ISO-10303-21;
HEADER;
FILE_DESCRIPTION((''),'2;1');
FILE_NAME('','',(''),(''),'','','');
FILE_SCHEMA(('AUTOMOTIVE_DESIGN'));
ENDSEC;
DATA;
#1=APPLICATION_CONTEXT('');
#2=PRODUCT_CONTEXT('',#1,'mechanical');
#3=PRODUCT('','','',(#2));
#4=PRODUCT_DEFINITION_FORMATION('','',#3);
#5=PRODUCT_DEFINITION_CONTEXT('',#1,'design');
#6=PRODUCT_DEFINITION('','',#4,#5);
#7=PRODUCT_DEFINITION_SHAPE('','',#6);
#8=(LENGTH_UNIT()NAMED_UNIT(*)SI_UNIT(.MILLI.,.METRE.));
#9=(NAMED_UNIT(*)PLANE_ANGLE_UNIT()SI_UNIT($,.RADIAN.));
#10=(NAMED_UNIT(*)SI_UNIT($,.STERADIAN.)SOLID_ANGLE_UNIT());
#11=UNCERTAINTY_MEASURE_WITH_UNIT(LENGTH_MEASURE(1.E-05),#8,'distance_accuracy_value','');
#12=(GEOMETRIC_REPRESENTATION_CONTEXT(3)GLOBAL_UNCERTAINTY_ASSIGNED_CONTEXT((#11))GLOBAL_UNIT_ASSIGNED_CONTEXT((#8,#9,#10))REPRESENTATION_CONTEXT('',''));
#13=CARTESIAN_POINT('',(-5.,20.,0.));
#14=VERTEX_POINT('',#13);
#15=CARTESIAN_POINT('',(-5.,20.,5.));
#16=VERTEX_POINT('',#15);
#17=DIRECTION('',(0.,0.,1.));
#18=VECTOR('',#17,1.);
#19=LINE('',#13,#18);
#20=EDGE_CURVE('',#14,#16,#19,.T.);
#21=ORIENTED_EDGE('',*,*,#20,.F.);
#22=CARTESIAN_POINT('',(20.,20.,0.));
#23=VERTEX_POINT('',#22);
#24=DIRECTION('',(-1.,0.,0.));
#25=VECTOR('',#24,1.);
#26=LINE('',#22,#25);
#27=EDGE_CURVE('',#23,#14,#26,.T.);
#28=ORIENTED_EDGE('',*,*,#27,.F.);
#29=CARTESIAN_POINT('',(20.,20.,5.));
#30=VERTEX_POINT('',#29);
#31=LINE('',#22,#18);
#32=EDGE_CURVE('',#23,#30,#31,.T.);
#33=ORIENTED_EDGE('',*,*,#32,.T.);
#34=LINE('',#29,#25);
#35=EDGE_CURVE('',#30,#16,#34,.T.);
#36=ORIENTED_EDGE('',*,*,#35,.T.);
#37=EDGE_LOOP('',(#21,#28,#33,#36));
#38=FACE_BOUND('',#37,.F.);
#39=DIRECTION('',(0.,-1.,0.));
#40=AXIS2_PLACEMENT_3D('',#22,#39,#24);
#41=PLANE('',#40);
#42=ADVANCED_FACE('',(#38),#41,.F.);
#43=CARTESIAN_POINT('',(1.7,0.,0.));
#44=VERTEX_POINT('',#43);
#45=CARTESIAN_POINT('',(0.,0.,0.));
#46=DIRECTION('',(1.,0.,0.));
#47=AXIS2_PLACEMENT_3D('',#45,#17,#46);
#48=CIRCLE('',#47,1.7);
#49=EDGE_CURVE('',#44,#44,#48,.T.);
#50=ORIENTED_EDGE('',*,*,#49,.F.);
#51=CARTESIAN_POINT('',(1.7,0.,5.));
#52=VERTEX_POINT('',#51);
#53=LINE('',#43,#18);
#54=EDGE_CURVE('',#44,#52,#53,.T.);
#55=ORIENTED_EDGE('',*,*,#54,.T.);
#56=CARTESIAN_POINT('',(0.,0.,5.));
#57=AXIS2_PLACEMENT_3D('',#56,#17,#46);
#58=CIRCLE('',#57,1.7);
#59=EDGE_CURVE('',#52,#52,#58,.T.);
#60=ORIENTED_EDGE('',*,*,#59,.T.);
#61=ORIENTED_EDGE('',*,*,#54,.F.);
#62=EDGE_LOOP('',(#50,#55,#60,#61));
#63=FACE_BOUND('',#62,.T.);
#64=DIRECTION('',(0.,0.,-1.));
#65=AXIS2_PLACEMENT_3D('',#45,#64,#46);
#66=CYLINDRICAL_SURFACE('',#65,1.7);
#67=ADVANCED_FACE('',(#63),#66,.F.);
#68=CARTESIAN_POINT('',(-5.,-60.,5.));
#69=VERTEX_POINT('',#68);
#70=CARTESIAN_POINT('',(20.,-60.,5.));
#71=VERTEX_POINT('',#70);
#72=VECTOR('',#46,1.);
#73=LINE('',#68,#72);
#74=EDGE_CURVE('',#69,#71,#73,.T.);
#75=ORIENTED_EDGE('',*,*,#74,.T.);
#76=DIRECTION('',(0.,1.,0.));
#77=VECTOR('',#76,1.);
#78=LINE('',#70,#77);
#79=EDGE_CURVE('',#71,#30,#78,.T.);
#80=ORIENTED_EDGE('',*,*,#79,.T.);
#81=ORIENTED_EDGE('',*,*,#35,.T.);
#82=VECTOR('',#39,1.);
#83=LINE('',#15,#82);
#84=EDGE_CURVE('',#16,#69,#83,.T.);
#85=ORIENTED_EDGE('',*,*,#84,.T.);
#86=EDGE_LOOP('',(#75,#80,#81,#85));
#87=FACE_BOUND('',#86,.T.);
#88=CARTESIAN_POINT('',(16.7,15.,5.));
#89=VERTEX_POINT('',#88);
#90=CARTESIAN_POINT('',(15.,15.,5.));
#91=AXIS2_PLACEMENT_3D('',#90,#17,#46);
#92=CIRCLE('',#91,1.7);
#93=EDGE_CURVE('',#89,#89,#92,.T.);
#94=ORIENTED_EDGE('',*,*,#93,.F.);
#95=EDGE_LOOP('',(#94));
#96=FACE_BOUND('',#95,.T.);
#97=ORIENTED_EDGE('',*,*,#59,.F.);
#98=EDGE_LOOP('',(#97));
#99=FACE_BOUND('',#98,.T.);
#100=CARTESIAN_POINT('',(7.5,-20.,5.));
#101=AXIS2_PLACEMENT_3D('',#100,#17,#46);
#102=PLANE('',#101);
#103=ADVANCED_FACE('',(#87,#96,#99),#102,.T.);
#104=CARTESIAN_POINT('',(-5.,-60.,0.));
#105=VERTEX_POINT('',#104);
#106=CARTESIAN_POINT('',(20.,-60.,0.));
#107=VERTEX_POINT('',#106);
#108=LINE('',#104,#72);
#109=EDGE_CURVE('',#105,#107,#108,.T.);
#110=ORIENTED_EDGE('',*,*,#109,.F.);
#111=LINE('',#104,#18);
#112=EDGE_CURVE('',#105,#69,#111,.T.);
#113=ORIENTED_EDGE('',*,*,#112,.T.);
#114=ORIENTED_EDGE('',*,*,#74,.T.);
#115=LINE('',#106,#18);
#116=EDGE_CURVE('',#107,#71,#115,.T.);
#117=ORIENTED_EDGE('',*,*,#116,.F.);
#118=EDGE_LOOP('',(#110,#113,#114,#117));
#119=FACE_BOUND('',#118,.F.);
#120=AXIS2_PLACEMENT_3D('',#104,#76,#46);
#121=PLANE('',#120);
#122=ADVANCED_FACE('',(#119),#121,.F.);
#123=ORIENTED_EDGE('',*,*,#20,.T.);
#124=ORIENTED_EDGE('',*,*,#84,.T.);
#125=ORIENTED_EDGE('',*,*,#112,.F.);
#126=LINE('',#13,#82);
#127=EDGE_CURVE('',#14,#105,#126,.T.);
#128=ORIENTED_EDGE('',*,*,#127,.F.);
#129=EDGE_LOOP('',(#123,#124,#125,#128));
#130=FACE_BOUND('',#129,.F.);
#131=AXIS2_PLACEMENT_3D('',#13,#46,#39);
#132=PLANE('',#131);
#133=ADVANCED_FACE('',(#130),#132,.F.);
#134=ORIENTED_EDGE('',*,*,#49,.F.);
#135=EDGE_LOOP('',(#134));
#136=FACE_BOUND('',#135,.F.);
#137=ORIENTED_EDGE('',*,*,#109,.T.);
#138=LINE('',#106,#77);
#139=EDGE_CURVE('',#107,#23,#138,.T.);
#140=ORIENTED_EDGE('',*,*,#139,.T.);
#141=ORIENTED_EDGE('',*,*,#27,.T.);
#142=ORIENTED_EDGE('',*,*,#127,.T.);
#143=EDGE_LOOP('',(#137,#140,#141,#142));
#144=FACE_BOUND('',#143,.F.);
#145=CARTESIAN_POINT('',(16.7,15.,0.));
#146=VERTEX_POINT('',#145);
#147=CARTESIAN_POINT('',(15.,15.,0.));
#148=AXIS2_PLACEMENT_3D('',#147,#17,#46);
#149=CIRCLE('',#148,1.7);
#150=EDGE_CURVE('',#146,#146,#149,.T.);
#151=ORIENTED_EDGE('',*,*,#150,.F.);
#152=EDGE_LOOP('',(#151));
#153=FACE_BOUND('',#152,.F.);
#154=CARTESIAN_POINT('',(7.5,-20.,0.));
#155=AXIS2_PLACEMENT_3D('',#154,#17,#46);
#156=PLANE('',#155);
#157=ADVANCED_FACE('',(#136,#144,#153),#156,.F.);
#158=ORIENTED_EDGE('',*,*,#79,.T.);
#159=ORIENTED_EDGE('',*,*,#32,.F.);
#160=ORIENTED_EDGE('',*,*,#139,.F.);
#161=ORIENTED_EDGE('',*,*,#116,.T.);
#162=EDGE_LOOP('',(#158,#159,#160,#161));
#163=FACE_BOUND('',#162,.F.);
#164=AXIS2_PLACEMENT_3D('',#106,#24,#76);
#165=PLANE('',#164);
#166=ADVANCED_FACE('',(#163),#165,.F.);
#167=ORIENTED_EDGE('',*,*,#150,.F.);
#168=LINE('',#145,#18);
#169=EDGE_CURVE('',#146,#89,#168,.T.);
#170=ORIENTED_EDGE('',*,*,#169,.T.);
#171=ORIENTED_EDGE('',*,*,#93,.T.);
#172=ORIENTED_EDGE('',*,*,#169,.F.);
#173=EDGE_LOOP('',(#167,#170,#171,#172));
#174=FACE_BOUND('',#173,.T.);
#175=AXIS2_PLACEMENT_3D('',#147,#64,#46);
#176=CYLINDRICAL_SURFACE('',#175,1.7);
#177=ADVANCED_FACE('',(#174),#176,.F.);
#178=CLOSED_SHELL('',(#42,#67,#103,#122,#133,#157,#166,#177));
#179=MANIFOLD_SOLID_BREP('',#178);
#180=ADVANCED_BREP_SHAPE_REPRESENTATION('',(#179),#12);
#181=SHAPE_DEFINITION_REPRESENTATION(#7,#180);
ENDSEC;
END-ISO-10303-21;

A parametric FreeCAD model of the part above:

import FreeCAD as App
import Part
import Sketcher
from FreeCAD import Vector

doc = App.newDocument("Part")
params = doc.addObject("Spreadsheet::Sheet", "Params")
for row, (alias, value) in enumerate([
    ("sketch1_diameter", "3.4 mm"),
    ("sketch1_height", "80 mm"),
    ("pad1_length", "5 mm"),
], start=1):
    params.set(f"A{row}", alias)
    params.set(f"B{row}", "=" + value)
    params.setAlias(f"B{row}", alias)

body = doc.addObject("PartDesign::Body", "Body")

sketch1 = body.newObject("Sketcher::SketchObject", "Sketch")
sketch1.AttachmentSupport = (doc.getObject("XY_Plane"), [""])
sketch1.MapMode = "FlatFace"
sketch1.addGeometry([
    Part.LineSegment(Vector(-5, 20, 0), Vector(-5, -60, 0)),
    Part.LineSegment(Vector(-5, -60, 0), Vector(20, -60, 0)),
    Part.LineSegment(Vector(20, -60, 0), Vector(20, 20, 0)),
    Part.LineSegment(Vector(20, 20, 0), Vector(-5, 20, 0)),
    Part.Circle(Vector(0, 0, 0), Vector(0, 0, 1), 1.7),
    Part.Circle(Vector(15, 15, 0), Vector(0, 0, 1), 1.7),
], False)
sketch1.addConstraint([
    Sketcher.Constraint("Coincident", 0, 2, 1, 1),
    Sketcher.Constraint("Coincident", 1, 2, 2, 1),
    Sketcher.Constraint("Coincident", 2, 2, 3, 1),
    Sketcher.Constraint("Coincident", 3, 2, 0, 1),
    Sketcher.Constraint("Vertical", 0),
    Sketcher.Constraint("Horizontal", 1),
    Sketcher.Constraint("Vertical", 2),
    Sketcher.Constraint("Horizontal", 3),
    Sketcher.Constraint("Coincident", 4, 3, -1, 1),
    Sketcher.Constraint("Equal", 4, 5),
    Sketcher.Constraint("DistanceX", -1, 1, 5, 3, 15.0),
    Sketcher.Constraint("DistanceY", -1, 1, 5, 3, 15.0),
    Sketcher.Constraint("DistanceX", 0, 2, -1, 1, 5.0),
    Sketcher.Constraint("DistanceX", 5, 3, 1, 2, 5.0),
    Sketcher.Constraint("DistanceY", 5, 3, 2, 2, 5.0),
    Sketcher.Constraint("Diameter", 4, 3.4),
    Sketcher.Constraint("DistanceY", 0, 2, 0, 1, 80.0),
])
sketch1.setExpression("Constraints[15]", "Params.sketch1_diameter")
sketch1.setExpression("Constraints[16]", "Params.sketch1_height")
pad1 = body.newObject("PartDesign::Pad", "Pad")
pad1.Profile = sketch1
pad1.setExpression("Length", "Params.pad1_length")

doc.recompute()
